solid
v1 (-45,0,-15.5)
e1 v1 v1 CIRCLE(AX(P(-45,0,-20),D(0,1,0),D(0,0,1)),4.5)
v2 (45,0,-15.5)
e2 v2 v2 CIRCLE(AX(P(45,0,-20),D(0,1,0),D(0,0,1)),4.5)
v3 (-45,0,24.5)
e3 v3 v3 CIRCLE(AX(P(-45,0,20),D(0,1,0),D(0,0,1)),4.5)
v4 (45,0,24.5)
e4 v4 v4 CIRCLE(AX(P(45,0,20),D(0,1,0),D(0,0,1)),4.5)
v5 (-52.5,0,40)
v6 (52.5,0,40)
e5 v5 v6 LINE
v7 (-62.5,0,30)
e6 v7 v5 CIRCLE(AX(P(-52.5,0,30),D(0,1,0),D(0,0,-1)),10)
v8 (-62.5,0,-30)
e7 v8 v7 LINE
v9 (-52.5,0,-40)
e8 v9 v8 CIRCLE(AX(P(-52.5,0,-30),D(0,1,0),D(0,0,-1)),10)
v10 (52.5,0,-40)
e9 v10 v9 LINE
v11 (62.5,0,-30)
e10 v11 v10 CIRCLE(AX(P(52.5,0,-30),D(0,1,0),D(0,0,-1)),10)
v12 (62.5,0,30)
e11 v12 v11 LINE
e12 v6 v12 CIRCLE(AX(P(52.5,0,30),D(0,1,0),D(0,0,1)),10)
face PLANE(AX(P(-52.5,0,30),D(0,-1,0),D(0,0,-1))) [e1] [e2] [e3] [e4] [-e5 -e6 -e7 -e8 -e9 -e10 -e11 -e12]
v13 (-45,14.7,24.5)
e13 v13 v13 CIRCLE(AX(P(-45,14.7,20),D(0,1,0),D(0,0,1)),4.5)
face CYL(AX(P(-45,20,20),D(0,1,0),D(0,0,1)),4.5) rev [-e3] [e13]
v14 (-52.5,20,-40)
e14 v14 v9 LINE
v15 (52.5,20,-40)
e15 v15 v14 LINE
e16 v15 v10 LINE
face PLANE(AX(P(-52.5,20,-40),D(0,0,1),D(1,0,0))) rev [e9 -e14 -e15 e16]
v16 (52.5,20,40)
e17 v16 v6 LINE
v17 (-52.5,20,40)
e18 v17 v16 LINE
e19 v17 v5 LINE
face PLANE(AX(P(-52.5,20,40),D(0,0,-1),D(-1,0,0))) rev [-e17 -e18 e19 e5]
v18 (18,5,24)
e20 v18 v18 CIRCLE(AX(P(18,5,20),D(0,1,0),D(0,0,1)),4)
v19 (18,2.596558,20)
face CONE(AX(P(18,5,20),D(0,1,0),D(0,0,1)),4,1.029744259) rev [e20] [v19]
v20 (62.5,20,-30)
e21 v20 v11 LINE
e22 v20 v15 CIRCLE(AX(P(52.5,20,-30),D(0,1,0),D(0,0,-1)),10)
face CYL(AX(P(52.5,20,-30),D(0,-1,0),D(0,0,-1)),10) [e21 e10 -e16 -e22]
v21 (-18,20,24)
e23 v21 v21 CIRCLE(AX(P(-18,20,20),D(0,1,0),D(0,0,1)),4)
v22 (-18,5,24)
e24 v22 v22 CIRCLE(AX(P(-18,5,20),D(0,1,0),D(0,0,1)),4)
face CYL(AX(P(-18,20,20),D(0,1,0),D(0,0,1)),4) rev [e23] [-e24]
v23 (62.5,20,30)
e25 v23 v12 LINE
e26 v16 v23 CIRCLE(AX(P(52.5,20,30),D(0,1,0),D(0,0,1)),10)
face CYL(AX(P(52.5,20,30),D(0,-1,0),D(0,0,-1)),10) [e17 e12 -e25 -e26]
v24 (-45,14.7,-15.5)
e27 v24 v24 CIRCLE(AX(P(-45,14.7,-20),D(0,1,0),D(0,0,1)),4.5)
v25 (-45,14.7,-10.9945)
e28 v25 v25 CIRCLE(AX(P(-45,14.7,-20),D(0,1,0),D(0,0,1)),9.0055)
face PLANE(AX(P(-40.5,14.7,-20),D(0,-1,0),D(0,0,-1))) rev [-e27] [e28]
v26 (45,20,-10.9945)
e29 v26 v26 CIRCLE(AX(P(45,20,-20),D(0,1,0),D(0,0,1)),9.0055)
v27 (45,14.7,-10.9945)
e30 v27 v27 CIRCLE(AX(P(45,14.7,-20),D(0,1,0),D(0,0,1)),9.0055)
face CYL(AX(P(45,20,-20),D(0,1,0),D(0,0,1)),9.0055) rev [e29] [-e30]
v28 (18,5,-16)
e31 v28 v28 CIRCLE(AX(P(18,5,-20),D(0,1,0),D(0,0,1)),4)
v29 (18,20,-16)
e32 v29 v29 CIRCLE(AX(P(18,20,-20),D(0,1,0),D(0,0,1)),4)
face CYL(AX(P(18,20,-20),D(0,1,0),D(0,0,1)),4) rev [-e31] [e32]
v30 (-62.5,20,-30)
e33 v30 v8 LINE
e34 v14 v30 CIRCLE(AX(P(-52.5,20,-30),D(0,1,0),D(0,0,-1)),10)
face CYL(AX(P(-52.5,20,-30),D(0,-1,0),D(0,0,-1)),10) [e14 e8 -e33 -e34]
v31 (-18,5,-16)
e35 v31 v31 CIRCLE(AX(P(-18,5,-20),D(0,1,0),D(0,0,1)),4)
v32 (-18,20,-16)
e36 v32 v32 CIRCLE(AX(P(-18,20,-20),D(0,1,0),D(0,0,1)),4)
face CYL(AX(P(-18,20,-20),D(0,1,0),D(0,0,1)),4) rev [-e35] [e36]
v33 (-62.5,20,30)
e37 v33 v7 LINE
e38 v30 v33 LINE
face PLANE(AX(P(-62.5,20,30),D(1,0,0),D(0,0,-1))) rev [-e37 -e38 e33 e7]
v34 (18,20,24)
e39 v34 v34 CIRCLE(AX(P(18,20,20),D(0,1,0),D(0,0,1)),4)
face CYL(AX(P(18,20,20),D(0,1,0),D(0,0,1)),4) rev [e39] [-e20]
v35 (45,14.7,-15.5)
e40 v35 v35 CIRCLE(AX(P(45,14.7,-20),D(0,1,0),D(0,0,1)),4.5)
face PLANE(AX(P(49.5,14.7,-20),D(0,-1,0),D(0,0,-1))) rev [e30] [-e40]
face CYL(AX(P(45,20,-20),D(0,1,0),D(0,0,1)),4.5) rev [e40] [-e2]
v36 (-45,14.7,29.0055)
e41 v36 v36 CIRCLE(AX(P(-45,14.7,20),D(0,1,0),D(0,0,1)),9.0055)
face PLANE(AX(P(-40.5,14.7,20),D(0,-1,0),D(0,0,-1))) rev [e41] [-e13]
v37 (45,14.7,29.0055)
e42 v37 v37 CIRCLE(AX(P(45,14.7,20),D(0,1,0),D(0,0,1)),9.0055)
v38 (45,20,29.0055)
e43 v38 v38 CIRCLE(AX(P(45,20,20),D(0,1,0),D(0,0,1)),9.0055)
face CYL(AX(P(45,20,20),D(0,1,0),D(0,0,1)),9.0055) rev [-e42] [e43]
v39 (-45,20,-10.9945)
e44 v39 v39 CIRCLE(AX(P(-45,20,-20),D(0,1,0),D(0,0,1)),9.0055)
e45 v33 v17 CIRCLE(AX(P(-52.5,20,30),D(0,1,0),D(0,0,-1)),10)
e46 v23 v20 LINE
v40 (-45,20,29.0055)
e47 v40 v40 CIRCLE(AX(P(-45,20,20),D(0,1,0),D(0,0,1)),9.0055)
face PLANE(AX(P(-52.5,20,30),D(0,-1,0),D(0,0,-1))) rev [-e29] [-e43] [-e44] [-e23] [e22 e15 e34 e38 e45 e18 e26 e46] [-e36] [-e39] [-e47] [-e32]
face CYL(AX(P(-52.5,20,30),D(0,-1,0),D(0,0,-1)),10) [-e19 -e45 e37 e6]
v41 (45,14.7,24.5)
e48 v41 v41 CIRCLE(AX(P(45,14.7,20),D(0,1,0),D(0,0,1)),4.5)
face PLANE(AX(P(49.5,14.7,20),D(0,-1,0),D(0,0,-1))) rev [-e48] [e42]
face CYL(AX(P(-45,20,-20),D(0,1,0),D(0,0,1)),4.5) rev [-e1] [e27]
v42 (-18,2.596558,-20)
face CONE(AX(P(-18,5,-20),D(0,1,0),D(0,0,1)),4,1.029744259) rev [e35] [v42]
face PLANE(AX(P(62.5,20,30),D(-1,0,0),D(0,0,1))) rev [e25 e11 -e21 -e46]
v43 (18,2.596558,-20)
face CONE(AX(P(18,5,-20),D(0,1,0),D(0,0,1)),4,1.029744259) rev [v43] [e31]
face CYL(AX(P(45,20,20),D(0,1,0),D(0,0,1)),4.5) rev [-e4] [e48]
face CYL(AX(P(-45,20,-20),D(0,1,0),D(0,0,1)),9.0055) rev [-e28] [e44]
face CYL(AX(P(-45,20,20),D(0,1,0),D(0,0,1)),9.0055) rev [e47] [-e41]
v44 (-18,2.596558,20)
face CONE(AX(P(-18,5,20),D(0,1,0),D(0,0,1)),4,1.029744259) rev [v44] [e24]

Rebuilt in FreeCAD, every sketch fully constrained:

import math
import FreeCAD as App
import Part
import Sketcher

doc = App.newDocument("Part")
body = doc.addObject("PartDesign::Body", "Body")

# Sketch on XZ plane
sketch1 = body.newObject("Sketcher::SketchObject", "Sketch")
sketch1.AttachmentSupport = (doc.getObject("XZ_Plane"), [""])
sketch1.MapMode = "FlatFace"
sketch1.addGeometry([
    Part.LineSegment(App.Vector(-52, 40, 0), App.Vector(52, 40, 0)),  # 0
    Part.ArcOfCircle(Part.Circle(App.Vector(52, 30, 0), App.Vector(0, 0, 1), 10), math.radians(0), math.radians(90)),  # 1
    Part.LineSegment(App.Vector(62, 30, 0), App.Vector(62, -30, 0)),  # 2
    Part.ArcOfCircle(Part.Circle(App.Vector(52, -30, 0), App.Vector(0, 0, 1), 10), math.radians(-90), math.radians(0)),  # 3
    Part.LineSegment(App.Vector(52, -40, 0), App.Vector(-52, -40, 0)),  # 4
    Part.ArcOfCircle(Part.Circle(App.Vector(-52, -30, 0), App.Vector(0, 0, 1), 10), math.radians(180), math.radians(270)),  # 5
    Part.LineSegment(App.Vector(-62, -30, 0), App.Vector(-62, 30, 0)),  # 6
    Part.ArcOfCircle(Part.Circle(App.Vector(-52, 30, 0), App.Vector(0, 0, 1), 10), math.radians(90), math.radians(180)),  # 7
], False)
sketch1.addConstraint([
    Sketcher.Constraint("Tangent", 0, 2, 1, 2),
    Sketcher.Constraint("Tangent", 1, 1, 2, 1),
    Sketcher.Constraint("Tangent", 2, 2, 3, 2),
    Sketcher.Constraint("Tangent", 3, 1, 4, 1),
    Sketcher.Constraint("Tangent", 4, 2, 5, 2),
    Sketcher.Constraint("Tangent", 5, 1, 6, 1),
    Sketcher.Constraint("Tangent", 6, 2, 7, 2),
    Sketcher.Constraint("Tangent", 7, 1, 0, 1),
    Sketcher.Constraint("Horizontal", 0),
    Sketcher.Constraint("Vertical", 2),
    Sketcher.Constraint("Horizontal", 4),
    Sketcher.Constraint("Vertical", 6),
    Sketcher.Constraint("Equal", 1, 3),
    Sketcher.Constraint("Equal", 3, 5),
    Sketcher.Constraint("Equal", 5, 7),
    Sketcher.Constraint("Symmetric", 1, 3, 5, 3, -1, 1),
    Sketcher.Constraint("Radius", 1, 10.0),
    Sketcher.Constraint("DistanceX", 0, 1, 0, 2, 105.0),
    Sketcher.Constraint("DistanceY", 2, 2, 2, 1, 60.0),
])
pad1 = body.newObject("PartDesign::Pad", "Pad")
pad1.Profile = sketch1
pad1.Length = 20
pad1.Reversed = True

# Sketch on XZ plane
sketch2 = body.newObject("Sketcher::SketchObject", "Sketch001")
sketch2.AttachmentSupport = (doc.getObject("XZ_Plane"), [""])
sketch2.MapMode = "FlatFace"
sketch2.AttachmentOffset = App.Placement(App.Vector(0, 0, -20), App.Rotation())
sketch2.addGeometry([
    Part.Circle(App.Vector(-18, 20, 0), App.Vector(0, 0, 1), 4),
    Part.Circle(App.Vector(18, 20, 0), App.Vector(0, 0, 1), 4),
    Part.Circle(App.Vector(18, -20, 0), App.Vector(0, 0, 1), 4),
    Part.Circle(App.Vector(-18, -20, 0), App.Vector(0, 0, 1), 4),
], False)
sketch2.addConstraint([
    Sketcher.Constraint("Equal", 0, 1),
    Sketcher.Constraint("Equal", 1, 2),
    Sketcher.Constraint("Equal", 2, 3),
    Sketcher.Constraint("Symmetric", 0, 3, 2, 3, -1, 1),
    Sketcher.Constraint("Symmetric", 1, 3, 3, 3, -1, 1),
    Sketcher.Constraint("Symmetric", 0, 3, 1, 3, -2),
    Sketcher.Constraint("Diameter", 0, 8.0),
    Sketcher.Constraint("DistanceX", 0, 3, -1, 1, 18.0),
    Sketcher.Constraint("DistanceY", -1, 1, 0, 3, 20.0),
])
doc.recompute()
hole = body.newObject("PartDesign::Hole", "Hole")
hole.Profile = sketch2
hole.ThreadType = "None"
hole.Diameter = 8
hole.DepthType = "Dimension"
hole.Depth = 15
hole.DrillPoint = "Angled"
hole.DrillPointAngle = 118
hole.Reversed = True

# Sketch on XZ plane
sketch3 = body.newObject("Sketcher::SketchObject", "Sketch002")
sketch3.AttachmentSupport = (doc.getObject("XZ_Plane"), [""])
sketch3.MapMode = "FlatFace"
sketch3.AttachmentOffset = App.Placement(App.Vector(0, 0, -20), App.Rotation())
sketch3.addGeometry([
    Part.Circle(App.Vector(-45, -20, 0), App.Vector(0, 0, 1), 4.5),
    Part.Circle(App.Vector(-45, 20, 0), App.Vector(0, 0, 1), 4.5),
    Part.Circle(App.Vector(45, 20, 0), App.Vector(0, 0, 1), 4.5),
    Part.Circle(App.Vector(45, -20, 0), App.Vector(0, 0, 1), 4.5),
], False)
sketch3.addConstraint([
    Sketcher.Constraint("Equal", 0, 1),
    Sketcher.Constraint("Equal", 1, 2),
    Sketcher.Constraint("Equal", 2, 3),
    Sketcher.Constraint("Symmetric", 0, 3, 2, 3, -1, 1),
    Sketcher.Constraint("Symmetric", 1, 3, 3, 3, -1, 1),
    Sketcher.Constraint("Symmetric", 1, 3, 2, 3, -2),
    Sketcher.Constraint("Diameter", 0, 9.0),
    Sketcher.Constraint("DistanceX", 0, 3, -1, 1, 45.0),
    Sketcher.Constraint("DistanceY", 0, 3, -1, 1, 20.0),
])
doc.recompute()
hole2 = body.newObject("PartDesign::Hole", "Hole001")
hole2.Profile = sketch3
hole2.ThreadType = "None"
hole2.Diameter = 9
hole2.DepthType = "ThroughAll"
hole2.HoleCutType = "Counterbore"
hole2.HoleCutDiameter = 18.011
hole2.HoleCutDepth = 5.3
hole2.Reversed = True

doc.recompute()
